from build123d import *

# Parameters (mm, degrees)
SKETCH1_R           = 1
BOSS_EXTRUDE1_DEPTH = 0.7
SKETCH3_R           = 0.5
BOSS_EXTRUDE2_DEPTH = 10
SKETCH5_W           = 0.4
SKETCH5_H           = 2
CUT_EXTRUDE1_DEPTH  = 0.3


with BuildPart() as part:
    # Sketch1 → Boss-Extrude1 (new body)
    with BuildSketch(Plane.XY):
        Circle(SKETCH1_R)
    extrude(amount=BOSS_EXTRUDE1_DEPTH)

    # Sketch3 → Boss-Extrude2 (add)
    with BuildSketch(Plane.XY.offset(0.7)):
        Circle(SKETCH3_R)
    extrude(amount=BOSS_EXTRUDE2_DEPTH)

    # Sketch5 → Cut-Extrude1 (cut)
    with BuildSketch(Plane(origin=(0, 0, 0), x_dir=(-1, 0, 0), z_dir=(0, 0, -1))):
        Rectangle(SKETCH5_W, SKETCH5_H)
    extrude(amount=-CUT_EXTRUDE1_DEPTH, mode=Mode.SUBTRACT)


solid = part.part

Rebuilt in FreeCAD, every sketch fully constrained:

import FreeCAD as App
import Part
import Sketcher

V = App.Vector


def add_polygon(sketch, points):
    """Adds a closed chain of lines whose ends are joined by coincident constraints."""
    first, n = sketch.GeometryCount, len(points)
    for a, b in zip(points, points[1:] + points[:1]):
        sketch.addGeometry(Part.LineSegment(App.Vector(*a, 0), App.Vector(*b, 0)), False)
    for i in range(n):
        sketch.addConstraint(Sketcher.Constraint("Coincident", first + i, 2, first + (i + 1) % n, 1))

doc = App.newDocument("Part")
body = doc.addObject("PartDesign::Body", "Body")

sketch1 = body.newObject("Sketcher::SketchObject", "Sketch")
sketch1.AttachmentSupport = (doc.getObject("XY_Plane"), [""])
sketch1.MapMode = "FlatFace"
sketch1.addGeometry(Part.Circle(V(0, 0, 0), V(0, 0, 1), 1), False)
sketch1.addConstraint([
    Sketcher.Constraint("Coincident", 0, 3, -1, 1),
    Sketcher.Constraint("Diameter", 0, 2.0),
])
pad1 = body.newObject("PartDesign::Pad", "Pad")
pad1.Profile = sketch1
pad1.Length = 0.7

sketch2 = body.newObject("Sketcher::SketchObject", "Sketch001")
sketch2.AttachmentSupport = (doc.getObject("XY_Plane"), [""])
sketch2.MapMode = "FlatFace"
sketch2.AttachmentOffset = App.Placement(V(0, 0, 0.7), App.Rotation())
sketch2.addGeometry(Part.Circle(V(0, 0, 0), V(0, 0, 1), 0.5), False)
sketch2.addConstraint([
    Sketcher.Constraint("Coincident", 0, 3, -1, 1),
    Sketcher.Constraint("Diameter", 0, 1.0),
])
pad2 = body.newObject("PartDesign::Pad", "Pad001")
pad2.Profile = sketch2
pad2.Length = 10

sketch3 = body.newObject("Sketcher::SketchObject", "Sketch002")
sketch3.AttachmentSupport = (doc.getObject("XY_Plane"), [""])
sketch3.MapMode = "FlatFace"
add_polygon(sketch3, [(0.2, 1), (0.2, -1), (-0.2, -1), (-0.2, 1)])
sketch3.addConstraint([
    Sketcher.Constraint("Vertical", 0),
    Sketcher.Constraint("Horizontal", 1),
    Sketcher.Constraint("Vertical", 2),
    Sketcher.Constraint("Horizontal", 3),
    Sketcher.Constraint("Symmetric", 0, 2, 2, 2, -1, 1),
    Sketcher.Constraint("DistanceY", 0, 2, 0, 1, 2.0),
    Sketcher.Constraint("DistanceX", 1, 2, 1, 1, 0.4),
])
pocket1 = body.newObject("PartDesign::Pocket", "Pocket")
pocket1.Profile = sketch3
pocket1.Length = 0.3
pocket1.Reversed = True

doc.recompute()
